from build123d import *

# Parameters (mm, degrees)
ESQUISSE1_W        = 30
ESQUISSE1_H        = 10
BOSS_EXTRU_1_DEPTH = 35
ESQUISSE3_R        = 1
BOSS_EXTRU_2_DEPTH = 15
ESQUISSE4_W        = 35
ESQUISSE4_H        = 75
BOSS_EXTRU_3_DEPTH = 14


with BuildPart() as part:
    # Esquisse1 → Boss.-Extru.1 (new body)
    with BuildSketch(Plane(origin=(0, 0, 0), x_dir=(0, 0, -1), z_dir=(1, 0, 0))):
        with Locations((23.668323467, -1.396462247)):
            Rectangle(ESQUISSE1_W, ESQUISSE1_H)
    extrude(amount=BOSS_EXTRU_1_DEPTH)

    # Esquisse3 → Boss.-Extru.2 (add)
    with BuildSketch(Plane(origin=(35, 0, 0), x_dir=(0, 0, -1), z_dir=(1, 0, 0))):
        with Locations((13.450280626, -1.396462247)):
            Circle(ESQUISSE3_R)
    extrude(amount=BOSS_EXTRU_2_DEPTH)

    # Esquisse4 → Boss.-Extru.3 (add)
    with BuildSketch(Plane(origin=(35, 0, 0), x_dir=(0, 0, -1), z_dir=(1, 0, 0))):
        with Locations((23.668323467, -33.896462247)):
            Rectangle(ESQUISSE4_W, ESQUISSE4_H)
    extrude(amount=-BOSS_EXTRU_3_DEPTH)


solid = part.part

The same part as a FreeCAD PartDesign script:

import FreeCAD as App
import Part
import Sketcher

V = App.Vector

doc = App.newDocument("Part")
body = doc.addObject("PartDesign::Body", "Body")

# Sketch on YZ plane
sketch1 = body.newObject("Sketcher::SketchObject", "Sketch")
sketch1.AttachmentSupport = (doc.getObject("YZ_Plane"), [""])
sketch1.MapMode = "FlatFace"
sketch1.addGeometry(Part.LineSegment(V(4, -9, 0), V(-6, -9, 0)), False)
sketch1.addGeometry(Part.LineSegment(V(-6, -9, 0), V(-6, -39, 0)), False)
sketch1.addGeometry(Part.LineSegment(V(-6, -39, 0), V(4, -39, 0)), False)
sketch1.addGeometry(Part.LineSegment(V(4, -39, 0), V(4, -9, 0)), False)
sketch1.addConstraint(Sketcher.Constraint("Coincident", 0, 2, 1, 1))
sketch1.addConstraint(Sketcher.Constraint("Coincident", 1, 2, 2, 1))
sketch1.addConstraint(Sketcher.Constraint("Coincident", 2, 2, 3, 1))
sketch1.addConstraint(Sketcher.Constraint("Coincident", 3, 2, 0, 1))
sketch1.addConstraint(Sketcher.Constraint("Horizontal", 0))
sketch1.addConstraint(Sketcher.Constraint("Vertical", 1))
sketch1.addConstraint(Sketcher.Constraint("Horizontal", 2))
sketch1.addConstraint(Sketcher.Constraint("Vertical", 3))
sketch1.addConstraint(Sketcher.Constraint("DistanceX", 0, 2, 0, 1, 10.0))
sketch1.addConstraint(Sketcher.Constraint("DistanceY", 1, 2, 1, 1, 30.0))
sketch1.addConstraint(Sketcher.Constraint("DistanceX", 0, 2, -1, 1, 6.396462))
sketch1.addConstraint(Sketcher.Constraint("DistanceY", 0, 2, -1, 1, 8.668323))
pad1 = body.newObject("PartDesign::Pad", "Pad")
pad1.Profile = sketch1
pad1.Length = 35

# Sketch on YZ plane
sketch2 = body.newObject("Sketcher::SketchObject", "Sketch001")
sketch2.AttachmentSupport = (doc.getObject("YZ_Plane"), [""])
sketch2.MapMode = "FlatFace"
sketch2.AttachmentOffset = App.Placement(V(0, 0, 35), App.Rotation())
sketch2.addGeometry(Part.Circle(V(-1.4, -13.5, 0), V(0, 0, 1), 1), False)
sketch2.addConstraint(Sketcher.Constraint("Diameter", 0, 2.0))
sketch2.addConstraint(Sketcher.Constraint("DistanceY", 0, 3, -1, 1, 13.450281))
sketch2.addConstraint(Sketcher.Constraint("DistanceX", 0, 3, -1, 1, 1.396462))
pad2 = body.newObject("PartDesign::Pad", "Pad001")
pad2.Profile = sketch2
pad2.Length = 15

# Sketch on YZ plane
sketch3 = body.newObject("Sketcher::SketchObject", "Sketch002")
sketch3.AttachmentSupport = (doc.getObject("YZ_Plane"), [""])
sketch3.MapMode = "FlatFace"
sketch3.AttachmentOffset = App.Placement(V(0, 0, 35), App.Rotation())
sketch3.addGeometry(Part.LineSegment(V(4, -6, 0), V(-71, -6, 0)), False)
sketch3.addGeometry(Part.LineSegment(V(-71, -6, 0), V(-71, -41, 0)), False)
sketch3.addGeometry(Part.LineSegment(V(-71, -41, 0), V(4, -41, 0)), False)
sketch3.addGeometry(Part.LineSegment(V(4, -41, 0), V(4, -6, 0)), False)
sketch3.addConstraint(Sketcher.Constraint("Coincident", 0, 2, 1, 1))
sketch3.addConstraint(Sketcher.Constraint("Coincident", 1, 2, 2, 1))
sketch3.addConstraint(Sketcher.Constraint("Coincident", 2, 2, 3, 1))
sketch3.addConstraint(Sketcher.Constraint("Coincident", 3, 2, 0, 1))
sketch3.addConstraint(Sketcher.Constraint("Horizontal", 0))
sketch3.addConstraint(Sketcher.Constraint("Vertical", 1))
sketch3.addConstraint(Sketcher.Constraint("Horizontal", 2))
sketch3.addConstraint(Sketcher.Constraint("Vertical", 3))
sketch3.addConstraint(Sketcher.Constraint("DistanceX", 0, 2, 0, 1, 75.0))
sketch3.addConstraint(Sketcher.Constraint("DistanceY", 1, 2, 1, 1, 35.0))
sketch3.addConstraint(Sketcher.Constraint("DistanceX", 0, 2, -1, 1, 71.396462))
sketch3.addConstraint(Sketcher.Constraint("DistanceY", 0, 2, -1, 1, 6.168323))
pad3 = body.newObject("PartDesign::Pad", "Pad002")
pad3.Profile = sketch3
pad3.Length = 14
pad3.Reversed = True

doc.recompute()
